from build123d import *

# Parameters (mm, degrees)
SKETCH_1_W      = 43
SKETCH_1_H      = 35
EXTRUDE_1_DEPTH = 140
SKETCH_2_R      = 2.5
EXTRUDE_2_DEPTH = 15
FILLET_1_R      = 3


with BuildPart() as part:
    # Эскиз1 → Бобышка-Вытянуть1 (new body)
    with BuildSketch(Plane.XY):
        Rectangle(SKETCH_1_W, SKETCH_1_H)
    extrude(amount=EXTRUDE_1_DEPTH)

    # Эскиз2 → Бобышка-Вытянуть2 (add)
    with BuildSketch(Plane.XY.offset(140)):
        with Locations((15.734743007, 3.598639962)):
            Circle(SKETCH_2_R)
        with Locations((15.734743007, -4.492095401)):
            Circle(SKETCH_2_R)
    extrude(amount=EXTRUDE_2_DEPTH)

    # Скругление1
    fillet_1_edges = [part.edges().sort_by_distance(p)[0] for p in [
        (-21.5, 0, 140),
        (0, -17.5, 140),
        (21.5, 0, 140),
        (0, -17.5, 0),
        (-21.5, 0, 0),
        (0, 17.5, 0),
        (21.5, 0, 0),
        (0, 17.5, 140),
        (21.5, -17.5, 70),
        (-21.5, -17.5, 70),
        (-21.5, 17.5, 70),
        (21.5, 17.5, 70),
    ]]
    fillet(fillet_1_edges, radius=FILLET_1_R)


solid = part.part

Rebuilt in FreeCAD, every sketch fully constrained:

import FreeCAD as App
import Part
import Sketcher
from FreeCAD import Vector
Q = App.Units.Quantity


def edges_at(feature, points):
    """Names of the edges that pass closest to the given points."""
    edges = feature.Shape.Edges
    near = lambda p: min(range(len(edges)), key=lambda i: edges[i].distToShape(Part.Vertex(*p))[0])
    return sorted({f"Edge{near(p) + 1}" for p in points})

doc = App.newDocument("Part")
body = doc.addObject("PartDesign::Body", "Body")

sketch1 = body.newObject("Sketcher::SketchObject", "Sketch")
sketch1.AttachmentSupport = (doc.getObject("XY_Plane"), [""])
sketch1.MapMode = "FlatFace"
sketch1.addGeometry([
    Part.LineSegment(Vector(-21.5, 17.5, 0), Vector(-21.5, -17.5, 0)),
    Part.LineSegment(Vector(-21.5, -17.5, 0), Vector(21.5, -17.5, 0)),
    Part.LineSegment(Vector(21.5, -17.5, 0), Vector(21.5, 17.5, 0)),
    Part.LineSegment(Vector(21.5, 17.5, 0), Vector(-21.5, 17.5, 0)),
], False)
sketch1.addConstraint([
    Sketcher.Constraint("Coincident", 0, 2, 1, 1),
    Sketcher.Constraint("Coincident", 1, 2, 2, 1),
    Sketcher.Constraint("Coincident", 2, 2, 3, 1),
    Sketcher.Constraint("Coincident", 3, 2, 0, 1),
    Sketcher.Constraint("Vertical", 0),
    Sketcher.Constraint("Horizontal", 1),
    Sketcher.Constraint("Vertical", 2),
    Sketcher.Constraint("Horizontal", 3),
    Sketcher.Constraint("Symmetric", 0, 2, 2, 2, -1, 1),
    Sketcher.Constraint("DistanceX", 1, 1, 1, 2, Q("43 mm")),
    Sketcher.Constraint("DistanceY", 0, 2, 0, 1, Q("35 mm")),
])
pad1 = body.newObject("PartDesign::Pad", "Pad")
pad1.Profile = sketch1
pad1.Length = 140

sketch2 = body.newObject("Sketcher::SketchObject", "Sketch001")
sketch2.AttachmentSupport = (doc.getObject("XY_Plane"), [""])
sketch2.MapMode = "FlatFace"
sketch2.AttachmentOffset = App.Placement(Vector(0, 0, 140), App.Rotation())
sketch2.addGeometry([
    Part.Circle(Vector(15.734743, 3.59864, 0), Vector(0, 0, 1), 2.5),
    Part.Circle(Vector(15.734743, -4.492095, 0), Vector(0, 0, 1), 2.5),
], False)
sketch2.addConstraint([
    Sketcher.Constraint("Equal", 0, 1),
    Sketcher.Constraint("Vertical", 0, 3, 1, 3),
    Sketcher.Constraint("Diameter", 0, Q("5 mm")),
    Sketcher.Constraint("DistanceY", -1, 1, 0, 3, Q("3.59864 mm")),
    Sketcher.Constraint("DistanceX", -1, 1, 0, 3, Q("15.734743 mm")),
    Sketcher.Constraint("DistanceY", 1, 3, -1, 1, Q("4.492095 mm")),
])
pad2 = body.newObject("PartDesign::Pad", "Pad001")
pad2.Profile = sketch2
pad2.Length = 15
doc.recompute()

fillet = body.newObject("PartDesign::Fillet", "Fillet")
fillet.Base = (pad2, edges_at(pad2, [
    (-21.5, 0, 140),
    (0, -17.5, 140),
    (21.5, 0, 140),
    (0, -17.5, 0),
    (-21.5, 0, 0),
    (0, 17.5, 0),
    (21.5, 0, 0),
    (0, 17.5, 140),
    (21.5, -17.5, 70),
    (-21.5, -17.5, 70),
    (-21.5, 17.5, 70),
    (21.5, 17.5, 70),
]))
fillet.Radius = 3

doc.recompute()
